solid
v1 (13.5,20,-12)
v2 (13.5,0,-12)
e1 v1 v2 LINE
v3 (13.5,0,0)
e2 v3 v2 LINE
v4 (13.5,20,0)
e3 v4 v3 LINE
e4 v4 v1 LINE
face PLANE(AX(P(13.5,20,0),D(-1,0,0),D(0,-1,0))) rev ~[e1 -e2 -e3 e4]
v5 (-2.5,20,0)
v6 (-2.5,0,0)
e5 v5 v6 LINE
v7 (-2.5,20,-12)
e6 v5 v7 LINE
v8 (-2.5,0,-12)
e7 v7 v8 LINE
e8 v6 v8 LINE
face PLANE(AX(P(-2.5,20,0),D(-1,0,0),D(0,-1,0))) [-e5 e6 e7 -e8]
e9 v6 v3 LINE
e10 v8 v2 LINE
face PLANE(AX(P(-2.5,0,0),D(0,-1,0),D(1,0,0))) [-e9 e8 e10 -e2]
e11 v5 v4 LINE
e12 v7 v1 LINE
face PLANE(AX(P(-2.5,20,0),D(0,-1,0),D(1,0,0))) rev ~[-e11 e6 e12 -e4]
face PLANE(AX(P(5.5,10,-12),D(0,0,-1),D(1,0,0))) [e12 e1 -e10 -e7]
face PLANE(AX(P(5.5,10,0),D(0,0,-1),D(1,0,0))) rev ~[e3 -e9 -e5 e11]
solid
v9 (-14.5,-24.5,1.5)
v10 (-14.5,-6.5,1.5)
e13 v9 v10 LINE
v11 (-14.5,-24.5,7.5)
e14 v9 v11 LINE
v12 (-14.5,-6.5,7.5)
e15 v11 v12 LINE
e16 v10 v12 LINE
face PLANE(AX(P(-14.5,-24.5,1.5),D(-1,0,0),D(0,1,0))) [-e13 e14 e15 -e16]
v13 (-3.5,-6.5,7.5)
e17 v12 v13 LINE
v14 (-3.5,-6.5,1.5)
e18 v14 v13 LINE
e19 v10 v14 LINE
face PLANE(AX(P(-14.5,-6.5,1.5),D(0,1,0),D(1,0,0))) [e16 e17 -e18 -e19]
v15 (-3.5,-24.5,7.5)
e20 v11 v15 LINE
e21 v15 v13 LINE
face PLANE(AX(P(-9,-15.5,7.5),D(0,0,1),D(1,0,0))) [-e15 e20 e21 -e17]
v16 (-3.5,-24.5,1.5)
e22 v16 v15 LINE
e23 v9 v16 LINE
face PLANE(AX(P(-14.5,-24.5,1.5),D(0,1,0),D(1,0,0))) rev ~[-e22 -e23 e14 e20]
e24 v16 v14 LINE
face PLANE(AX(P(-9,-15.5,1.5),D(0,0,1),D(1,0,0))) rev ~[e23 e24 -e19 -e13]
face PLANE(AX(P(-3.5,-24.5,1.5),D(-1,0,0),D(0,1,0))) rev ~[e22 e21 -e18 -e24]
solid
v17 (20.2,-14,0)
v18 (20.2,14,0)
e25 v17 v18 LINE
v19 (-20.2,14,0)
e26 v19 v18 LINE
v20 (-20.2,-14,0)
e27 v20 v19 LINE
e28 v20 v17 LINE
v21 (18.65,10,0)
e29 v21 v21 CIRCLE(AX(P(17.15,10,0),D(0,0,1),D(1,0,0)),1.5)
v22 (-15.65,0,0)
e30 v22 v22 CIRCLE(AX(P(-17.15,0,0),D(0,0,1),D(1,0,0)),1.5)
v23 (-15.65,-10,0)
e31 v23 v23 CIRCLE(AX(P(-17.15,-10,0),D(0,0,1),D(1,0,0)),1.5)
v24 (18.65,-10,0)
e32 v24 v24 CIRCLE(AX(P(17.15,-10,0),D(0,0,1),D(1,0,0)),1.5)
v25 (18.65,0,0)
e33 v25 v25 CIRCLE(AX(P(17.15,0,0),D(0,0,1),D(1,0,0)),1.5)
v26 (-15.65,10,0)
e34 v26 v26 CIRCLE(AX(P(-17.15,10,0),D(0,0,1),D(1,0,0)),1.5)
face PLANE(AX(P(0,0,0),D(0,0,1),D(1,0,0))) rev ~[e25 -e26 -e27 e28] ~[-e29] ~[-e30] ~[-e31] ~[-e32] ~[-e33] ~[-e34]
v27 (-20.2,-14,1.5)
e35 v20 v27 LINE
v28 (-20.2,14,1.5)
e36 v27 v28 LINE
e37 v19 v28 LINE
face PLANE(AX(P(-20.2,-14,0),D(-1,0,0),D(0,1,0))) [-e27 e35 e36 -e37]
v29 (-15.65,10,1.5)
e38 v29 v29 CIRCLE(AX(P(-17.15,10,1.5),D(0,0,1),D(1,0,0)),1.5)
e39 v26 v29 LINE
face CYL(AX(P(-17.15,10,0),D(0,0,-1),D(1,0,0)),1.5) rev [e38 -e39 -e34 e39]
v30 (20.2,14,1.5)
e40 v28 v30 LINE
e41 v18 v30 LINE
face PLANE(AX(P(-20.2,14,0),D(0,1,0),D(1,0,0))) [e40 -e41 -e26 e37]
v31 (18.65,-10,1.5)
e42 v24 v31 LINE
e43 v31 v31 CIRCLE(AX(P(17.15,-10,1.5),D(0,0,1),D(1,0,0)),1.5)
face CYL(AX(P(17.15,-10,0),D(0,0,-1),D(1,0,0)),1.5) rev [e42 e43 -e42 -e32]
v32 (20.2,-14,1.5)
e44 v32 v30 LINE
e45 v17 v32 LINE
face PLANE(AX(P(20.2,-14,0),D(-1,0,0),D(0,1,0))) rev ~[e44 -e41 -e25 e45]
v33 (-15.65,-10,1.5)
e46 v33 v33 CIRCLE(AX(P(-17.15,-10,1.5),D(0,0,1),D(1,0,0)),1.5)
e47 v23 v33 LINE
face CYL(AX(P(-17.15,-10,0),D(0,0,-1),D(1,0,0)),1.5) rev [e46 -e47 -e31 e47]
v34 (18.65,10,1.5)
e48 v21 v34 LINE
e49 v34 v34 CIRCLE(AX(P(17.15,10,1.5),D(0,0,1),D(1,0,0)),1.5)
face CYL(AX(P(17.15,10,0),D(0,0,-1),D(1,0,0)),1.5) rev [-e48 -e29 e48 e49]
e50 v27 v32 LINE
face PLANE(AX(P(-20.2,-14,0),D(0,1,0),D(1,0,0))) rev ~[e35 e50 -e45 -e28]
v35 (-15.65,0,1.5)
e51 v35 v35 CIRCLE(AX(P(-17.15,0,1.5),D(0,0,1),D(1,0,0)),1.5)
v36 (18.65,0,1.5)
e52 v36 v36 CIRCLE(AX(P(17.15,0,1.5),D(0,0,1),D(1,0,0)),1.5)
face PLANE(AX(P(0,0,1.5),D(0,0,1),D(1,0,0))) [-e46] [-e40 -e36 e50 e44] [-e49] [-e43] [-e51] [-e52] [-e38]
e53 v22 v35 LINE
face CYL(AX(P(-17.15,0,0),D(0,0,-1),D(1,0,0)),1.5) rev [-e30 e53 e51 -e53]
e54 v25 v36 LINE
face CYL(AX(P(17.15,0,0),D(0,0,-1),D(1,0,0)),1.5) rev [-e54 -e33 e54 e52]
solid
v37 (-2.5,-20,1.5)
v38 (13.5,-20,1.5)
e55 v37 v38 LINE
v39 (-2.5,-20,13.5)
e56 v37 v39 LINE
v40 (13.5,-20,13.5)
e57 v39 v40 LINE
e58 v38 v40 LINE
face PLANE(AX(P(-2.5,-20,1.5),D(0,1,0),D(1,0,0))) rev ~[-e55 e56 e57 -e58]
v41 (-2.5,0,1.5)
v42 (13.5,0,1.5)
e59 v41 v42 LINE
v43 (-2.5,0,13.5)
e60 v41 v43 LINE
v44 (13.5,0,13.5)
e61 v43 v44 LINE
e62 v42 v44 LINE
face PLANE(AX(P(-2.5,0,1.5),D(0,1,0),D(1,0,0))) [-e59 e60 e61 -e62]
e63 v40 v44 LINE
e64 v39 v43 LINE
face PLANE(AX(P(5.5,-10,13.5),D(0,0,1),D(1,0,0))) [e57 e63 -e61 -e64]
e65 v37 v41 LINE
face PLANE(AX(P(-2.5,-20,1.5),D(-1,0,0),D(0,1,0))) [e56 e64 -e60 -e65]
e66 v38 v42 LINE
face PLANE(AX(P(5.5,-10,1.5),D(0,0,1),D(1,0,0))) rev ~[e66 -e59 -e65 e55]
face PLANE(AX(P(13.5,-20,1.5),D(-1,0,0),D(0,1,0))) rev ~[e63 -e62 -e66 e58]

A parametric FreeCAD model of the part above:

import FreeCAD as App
import Part
import Sketcher

V = App.Vector
Q = App.Units.Quantity

doc = App.newDocument("Part")
params = doc.addObject("Spreadsheet::Sheet", "Params")
for row, (alias, value) in enumerate([
    ("sketch1_diameter", "3 mm"),
    ("sketch1_height", "28 mm"),
    ("sketch1_width", "40.4 mm"),
    ("pad1_length", "1.5 mm"),
    ("sketch2_width", "16 mm"),
    ("sketch2_height", "20 mm"),
    ("pad2_length", "12 mm"),
    ("sketch3_width", "16 mm"),
    ("sketch3_height", "20 mm"),
    ("pad3_length", "12 mm"),
    ("sketch4_width", "11 mm"),
    ("sketch4_height", "18 mm"),
    ("pad4_length", "6 mm"),
], start=1):
    params.set(f"A{row}", alias)
    params.set(f"B{row}", "=" + value)
    params.setAlias(f"B{row}", alias)

body = doc.addObject("PartDesign::Body", "Body")

# Sketch on XY plane
sketch1 = doc.addObject("Sketcher::SketchObject", "Sketch")
body.addObject(sketch1)
sketch1.AttachmentSupport = (doc.XY_Plane, [""])
sketch1.MapMode = "FlatFace"
sketch1.addGeometry(Part.LineSegment(V(-20.2, 14, 0), V(-20.2, -14, 0)), False)
sketch1.addGeometry(Part.LineSegment(V(-20.2, -14, 0), V(20.2, -14, 0)), False)
sketch1.addGeometry(Part.LineSegment(V(20.2, -14, 0), V(20.2, 14, 0)), False)
sketch1.addGeometry(Part.LineSegment(V(20.2, 14, 0), V(-20.2, 14, 0)), False)
sketch1.addGeometry(Part.Circle(V(-17.15, -10, 0), V(0, 0, 1), 1.5), False)
sketch1.addGeometry(Part.Circle(V(17.15, -10, 0), V(0, 0, 1), 1.5), False)
sketch1.addGeometry(Part.Circle(V(-17.15, 0, 0), V(0, 0, 1), 1.5), False)
sketch1.addGeometry(Part.Circle(V(-17.15, 10, 0), V(0, 0, 1), 1.5), False)
sketch1.addGeometry(Part.Circle(V(17.15, 0, 0), V(0, 0, 1), 1.5), False)
sketch1.addGeometry(Part.Circle(V(17.15, 10, 0), V(0, 0, 1), 1.5), False)
sketch1.addConstraint(Sketcher.Constraint("Coincident", 0, 2, 1, 1))
sketch1.addConstraint(Sketcher.Constraint("Coincident", 1, 2, 2, 1))
sketch1.addConstraint(Sketcher.Constraint("Coincident", 2, 2, 3, 1))
sketch1.addConstraint(Sketcher.Constraint("Coincident", 3, 2, 0, 1))
sketch1.addConstraint(Sketcher.Constraint("Vertical", 0))
sketch1.addConstraint(Sketcher.Constraint("Horizontal", 1))
sketch1.addConstraint(Sketcher.Constraint("Vertical", 2))
sketch1.addConstraint(Sketcher.Constraint("Horizontal", 3))
sketch1.addConstraint(Sketcher.Constraint("Equal", 4, 5))
sketch1.addConstraint(Sketcher.Constraint("Equal", 5, 6))
sketch1.addConstraint(Sketcher.Constraint("Equal", 6, 7))
sketch1.addConstraint(Sketcher.Constraint("Equal", 7, 8))
sketch1.addConstraint(Sketcher.Constraint("Equal", 8, 9))
sketch1.addConstraint(Sketcher.Constraint("Symmetric", 5, 3, 7, 3, -1, 1))
sketch1.addConstraint(Sketcher.Constraint("Symmetric", 6, 3, 8, 3, -1, 1))
sketch1.addConstraint(Sketcher.Constraint("Symmetric", 4, 3, 9, 3, -1, 1))
sketch1.addConstraint(Sketcher.Constraint("Symmetric", 0, 2, 2, 2, -1, 1))
sketch1.addConstraint(Sketcher.Constraint("Symmetric", 4, 3, 5, 3, -2))
sketch1.addConstraint(Sketcher.Constraint("PointOnObject", 6, 3, -1))
sketch1.addConstraint(Sketcher.Constraint("Vertical", 4, 3, 6, 3))
sketch1.addConstraint(Sketcher.Constraint("Diameter", 4, Q("3 mm")))
sketch1.addConstraint(Sketcher.Constraint("DistanceY", 0, 2, 0, 1, Q("28 mm")))
sketch1.addConstraint(Sketcher.Constraint("DistanceX", 1, 1, 1, 2, Q("40.4 mm")))
sketch1.addConstraint(Sketcher.Constraint("DistanceY", 4, 3, -1, 1, Q("10 mm")))
sketch1.addConstraint(Sketcher.Constraint("DistanceX", 4, 3, 5, 3, Q("34.3 mm")))
sketch1.setExpression("Constraints[20]", "Params.sketch1_diameter")
sketch1.setExpression("Constraints[21]", "Params.sketch1_height")
sketch1.setExpression("Constraints[22]", "Params.sketch1_width")
pad1 = doc.addObject("PartDesign::Pad", "Pad")
body.addObject(pad1)
pad1.Profile = sketch1
pad1.setExpression("Length", "Params.pad1_length")
body2 = doc.addObject("PartDesign::Body", "Body001")

# Sketch on XY plane
sketch2 = doc.addObject("Sketcher::SketchObject", "Sketch001")
body2.addObject(sketch2)
sketch2.AttachmentSupport = (doc.getObject("XY_Plane001"), [""])
sketch2.MapMode = "FlatFace"
sketch2.addGeometry(Part.LineSegment(V(-2.5, 0, 0), V(-2.5, 20, 0)), False)
sketch2.addGeometry(Part.LineSegment(V(-2.5, 20, 0), V(13.5, 20, 0)), False)
sketch2.addGeometry(Part.LineSegment(V(13.5, 20, 0), V(13.5, 0, 0)), False)
sketch2.addGeometry(Part.LineSegment(V(13.5, 0, 0), V(-2.5, 0, 0)), False)
sketch2.addConstraint(Sketcher.Constraint("Coincident", 0, 2, 1, 1))
sketch2.addConstraint(Sketcher.Constraint("Coincident", 1, 2, 2, 1))
sketch2.addConstraint(Sketcher.Constraint("Coincident", 2, 2, 3, 1))
sketch2.addConstraint(Sketcher.Constraint("Coincident", 3, 2, 0, 1))
sketch2.addConstraint(Sketcher.Constraint("Vertical", 0))
sketch2.addConstraint(Sketcher.Constraint("Horizontal", 1))
sketch2.addConstraint(Sketcher.Constraint("Vertical", 2))
sketch2.addConstraint(Sketcher.Constraint("Horizontal", 3))
sketch2.addConstraint(Sketcher.Constraint("PointOnObject", 2, 2, -1))
sketch2.addConstraint(Sketcher.Constraint("DistanceX", 1, 1, 1, 2, Q("16 mm")))
sketch2.addConstraint(Sketcher.Constraint("DistanceY", 0, 1, 0, 2, Q("20 mm")))
sketch2.addConstraint(Sketcher.Constraint("DistanceX", 0, 2, -1, 1, Q("2.5 mm")))
sketch2.setExpression("Constraints[9]", "Params.sketch2_width")
sketch2.setExpression("Constraints[10]", "Params.sketch2_height")
pad2 = doc.addObject("PartDesign::Pad", "Pad001")
body2.addObject(pad2)
pad2.Profile = sketch2
pad2.setExpression("Length", "Params.pad2_length")
pad2.Reversed = True
body3 = doc.addObject("PartDesign::Body", "Body002")

# Sketch on XY plane
sketch3 = doc.addObject("Sketcher::SketchObject", "Sketch002")
body3.addObject(sketch3)
sketch3.AttachmentSupport = (doc.getObject("XY_Plane002"), [""])
sketch3.MapMode = "FlatFace"
sketch3.AttachmentOffset = App.Placement(V(0, 0, 1.5), App.Rotation())
sketch3.addGeometry(Part.LineSegment(V(-2.5, 0, 0), V(-2.5, -20, 0)), False)
sketch3.addGeometry(Part.LineSegment(V(-2.5, -20, 0), V(13.5, -20, 0)), False)
sketch3.addGeometry(Part.LineSegment(V(13.5, -20, 0), V(13.5, 0, 0)), False)
sketch3.addGeometry(Part.LineSegment(V(13.5, 0, 0), V(-2.5, 0, 0)), False)
sketch3.addConstraint(Sketcher.Constraint("Coincident", 0, 2, 1, 1))
sketch3.addConstraint(Sketcher.Constraint("Coincident", 1, 2, 2, 1))
sketch3.addConstraint(Sketcher.Constraint("Coincident", 2, 2, 3, 1))
sketch3.addConstraint(Sketcher.Constraint("Coincident", 3, 2, 0, 1))
sketch3.addConstraint(Sketcher.Constraint("Vertical", 0))
sketch3.addConstraint(Sketcher.Constraint("Horizontal", 1))
sketch3.addConstraint(Sketcher.Constraint("Vertical", 2))
sketch3.addConstraint(Sketcher.Constraint("Horizontal", 3))
sketch3.addConstraint(Sketcher.Constraint("PointOnObject", 2, 2, -1))
sketch3.addConstraint(Sketcher.Constraint("DistanceX", 1, 1, 1, 2, Q("16 mm")))
sketch3.addConstraint(Sketcher.Constraint("DistanceY", 0, 2, 0, 1, Q("20 mm")))
sketch3.addConstraint(Sketcher.Constraint("DistanceX", 0, 2, -1, 1, Q("2.5 mm")))
sketch3.setExpression("Constraints[9]", "Params.sketch3_width")
sketch3.setExpression("Constraints[10]", "Params.sketch3_height")
pad3 = doc.addObject("PartDesign::Pad", "Pad002")
body3.addObject(pad3)
pad3.Profile = sketch3
pad3.setExpression("Length", "Params.pad3_length")
body4 = doc.addObject("PartDesign::Body", "Body003")

# Sketch on XY plane
sketch4 = doc.addObject("Sketcher::SketchObject", "Sketch003")
body4.addObject(sketch4)
sketch4.AttachmentSupport = (doc.getObject("XY_Plane003"), [""])
sketch4.MapMode = "FlatFace"
sketch4.AttachmentOffset = App.Placement(V(0, 0, 1.5), App.Rotation())
sketch4.addGeometry(Part.LineSegment(V(-14.5, -6.5, 0), V(-14.5, -24.5, 0)), False)
sketch4.addGeometry(Part.LineSegment(V(-14.5, -24.5, 0), V(-3.5, -24.5, 0)), False)
sketch4.addGeometry(Part.LineSegment(V(-3.5, -24.5, 0), V(-3.5, -6.5, 0)), False)
sketch4.addGeometry(Part.LineSegment(V(-3.5, -6.5, 0), V(-14.5, -6.5, 0)), False)
sketch4.addConstraint(Sketcher.Constraint("Coincident", 0, 2, 1, 1))
sketch4.addConstraint(Sketcher.Constraint("Coincident", 1, 2, 2, 1))
sketch4.addConstraint(Sketcher.Constraint("Coincident", 2, 2, 3, 1))
sketch4.addConstraint(Sketcher.Constraint("Coincident", 3, 2, 0, 1))
sketch4.addConstraint(Sketcher.Constraint("Vertical", 0))
sketch4.addConstraint(Sketcher.Constraint("Horizontal", 1))
sketch4.addConstraint(Sketcher.Constraint("Vertical", 2))
sketch4.addConstraint(Sketcher.Constraint("Horizontal", 3))
sketch4.addConstraint(Sketcher.Constraint("DistanceX", 1, 1, 1, 2, Q("11 mm")))
sketch4.addConstraint(Sketcher.Constraint("DistanceY", 0, 2, 0, 1, Q("18 mm")))
sketch4.addConstraint(Sketcher.Constraint("DistanceX", 0, 2, -1, 1, Q("14.5 mm")))
sketch4.addConstraint(Sketcher.Constraint("DistanceY", 0, 2, -1, 1, Q("24.5 mm")))
sketch4.setExpression("Constraints[8]", "Params.sketch4_width")
sketch4.setExpression("Constraints[9]", "Params.sketch4_height")
pad4 = doc.addObject("PartDesign::Pad", "Pad003")
body4.addObject(pad4)
pad4.Profile = sketch4
pad4.setExpression("Length", "Params.pad4_length")

doc.recompute()
